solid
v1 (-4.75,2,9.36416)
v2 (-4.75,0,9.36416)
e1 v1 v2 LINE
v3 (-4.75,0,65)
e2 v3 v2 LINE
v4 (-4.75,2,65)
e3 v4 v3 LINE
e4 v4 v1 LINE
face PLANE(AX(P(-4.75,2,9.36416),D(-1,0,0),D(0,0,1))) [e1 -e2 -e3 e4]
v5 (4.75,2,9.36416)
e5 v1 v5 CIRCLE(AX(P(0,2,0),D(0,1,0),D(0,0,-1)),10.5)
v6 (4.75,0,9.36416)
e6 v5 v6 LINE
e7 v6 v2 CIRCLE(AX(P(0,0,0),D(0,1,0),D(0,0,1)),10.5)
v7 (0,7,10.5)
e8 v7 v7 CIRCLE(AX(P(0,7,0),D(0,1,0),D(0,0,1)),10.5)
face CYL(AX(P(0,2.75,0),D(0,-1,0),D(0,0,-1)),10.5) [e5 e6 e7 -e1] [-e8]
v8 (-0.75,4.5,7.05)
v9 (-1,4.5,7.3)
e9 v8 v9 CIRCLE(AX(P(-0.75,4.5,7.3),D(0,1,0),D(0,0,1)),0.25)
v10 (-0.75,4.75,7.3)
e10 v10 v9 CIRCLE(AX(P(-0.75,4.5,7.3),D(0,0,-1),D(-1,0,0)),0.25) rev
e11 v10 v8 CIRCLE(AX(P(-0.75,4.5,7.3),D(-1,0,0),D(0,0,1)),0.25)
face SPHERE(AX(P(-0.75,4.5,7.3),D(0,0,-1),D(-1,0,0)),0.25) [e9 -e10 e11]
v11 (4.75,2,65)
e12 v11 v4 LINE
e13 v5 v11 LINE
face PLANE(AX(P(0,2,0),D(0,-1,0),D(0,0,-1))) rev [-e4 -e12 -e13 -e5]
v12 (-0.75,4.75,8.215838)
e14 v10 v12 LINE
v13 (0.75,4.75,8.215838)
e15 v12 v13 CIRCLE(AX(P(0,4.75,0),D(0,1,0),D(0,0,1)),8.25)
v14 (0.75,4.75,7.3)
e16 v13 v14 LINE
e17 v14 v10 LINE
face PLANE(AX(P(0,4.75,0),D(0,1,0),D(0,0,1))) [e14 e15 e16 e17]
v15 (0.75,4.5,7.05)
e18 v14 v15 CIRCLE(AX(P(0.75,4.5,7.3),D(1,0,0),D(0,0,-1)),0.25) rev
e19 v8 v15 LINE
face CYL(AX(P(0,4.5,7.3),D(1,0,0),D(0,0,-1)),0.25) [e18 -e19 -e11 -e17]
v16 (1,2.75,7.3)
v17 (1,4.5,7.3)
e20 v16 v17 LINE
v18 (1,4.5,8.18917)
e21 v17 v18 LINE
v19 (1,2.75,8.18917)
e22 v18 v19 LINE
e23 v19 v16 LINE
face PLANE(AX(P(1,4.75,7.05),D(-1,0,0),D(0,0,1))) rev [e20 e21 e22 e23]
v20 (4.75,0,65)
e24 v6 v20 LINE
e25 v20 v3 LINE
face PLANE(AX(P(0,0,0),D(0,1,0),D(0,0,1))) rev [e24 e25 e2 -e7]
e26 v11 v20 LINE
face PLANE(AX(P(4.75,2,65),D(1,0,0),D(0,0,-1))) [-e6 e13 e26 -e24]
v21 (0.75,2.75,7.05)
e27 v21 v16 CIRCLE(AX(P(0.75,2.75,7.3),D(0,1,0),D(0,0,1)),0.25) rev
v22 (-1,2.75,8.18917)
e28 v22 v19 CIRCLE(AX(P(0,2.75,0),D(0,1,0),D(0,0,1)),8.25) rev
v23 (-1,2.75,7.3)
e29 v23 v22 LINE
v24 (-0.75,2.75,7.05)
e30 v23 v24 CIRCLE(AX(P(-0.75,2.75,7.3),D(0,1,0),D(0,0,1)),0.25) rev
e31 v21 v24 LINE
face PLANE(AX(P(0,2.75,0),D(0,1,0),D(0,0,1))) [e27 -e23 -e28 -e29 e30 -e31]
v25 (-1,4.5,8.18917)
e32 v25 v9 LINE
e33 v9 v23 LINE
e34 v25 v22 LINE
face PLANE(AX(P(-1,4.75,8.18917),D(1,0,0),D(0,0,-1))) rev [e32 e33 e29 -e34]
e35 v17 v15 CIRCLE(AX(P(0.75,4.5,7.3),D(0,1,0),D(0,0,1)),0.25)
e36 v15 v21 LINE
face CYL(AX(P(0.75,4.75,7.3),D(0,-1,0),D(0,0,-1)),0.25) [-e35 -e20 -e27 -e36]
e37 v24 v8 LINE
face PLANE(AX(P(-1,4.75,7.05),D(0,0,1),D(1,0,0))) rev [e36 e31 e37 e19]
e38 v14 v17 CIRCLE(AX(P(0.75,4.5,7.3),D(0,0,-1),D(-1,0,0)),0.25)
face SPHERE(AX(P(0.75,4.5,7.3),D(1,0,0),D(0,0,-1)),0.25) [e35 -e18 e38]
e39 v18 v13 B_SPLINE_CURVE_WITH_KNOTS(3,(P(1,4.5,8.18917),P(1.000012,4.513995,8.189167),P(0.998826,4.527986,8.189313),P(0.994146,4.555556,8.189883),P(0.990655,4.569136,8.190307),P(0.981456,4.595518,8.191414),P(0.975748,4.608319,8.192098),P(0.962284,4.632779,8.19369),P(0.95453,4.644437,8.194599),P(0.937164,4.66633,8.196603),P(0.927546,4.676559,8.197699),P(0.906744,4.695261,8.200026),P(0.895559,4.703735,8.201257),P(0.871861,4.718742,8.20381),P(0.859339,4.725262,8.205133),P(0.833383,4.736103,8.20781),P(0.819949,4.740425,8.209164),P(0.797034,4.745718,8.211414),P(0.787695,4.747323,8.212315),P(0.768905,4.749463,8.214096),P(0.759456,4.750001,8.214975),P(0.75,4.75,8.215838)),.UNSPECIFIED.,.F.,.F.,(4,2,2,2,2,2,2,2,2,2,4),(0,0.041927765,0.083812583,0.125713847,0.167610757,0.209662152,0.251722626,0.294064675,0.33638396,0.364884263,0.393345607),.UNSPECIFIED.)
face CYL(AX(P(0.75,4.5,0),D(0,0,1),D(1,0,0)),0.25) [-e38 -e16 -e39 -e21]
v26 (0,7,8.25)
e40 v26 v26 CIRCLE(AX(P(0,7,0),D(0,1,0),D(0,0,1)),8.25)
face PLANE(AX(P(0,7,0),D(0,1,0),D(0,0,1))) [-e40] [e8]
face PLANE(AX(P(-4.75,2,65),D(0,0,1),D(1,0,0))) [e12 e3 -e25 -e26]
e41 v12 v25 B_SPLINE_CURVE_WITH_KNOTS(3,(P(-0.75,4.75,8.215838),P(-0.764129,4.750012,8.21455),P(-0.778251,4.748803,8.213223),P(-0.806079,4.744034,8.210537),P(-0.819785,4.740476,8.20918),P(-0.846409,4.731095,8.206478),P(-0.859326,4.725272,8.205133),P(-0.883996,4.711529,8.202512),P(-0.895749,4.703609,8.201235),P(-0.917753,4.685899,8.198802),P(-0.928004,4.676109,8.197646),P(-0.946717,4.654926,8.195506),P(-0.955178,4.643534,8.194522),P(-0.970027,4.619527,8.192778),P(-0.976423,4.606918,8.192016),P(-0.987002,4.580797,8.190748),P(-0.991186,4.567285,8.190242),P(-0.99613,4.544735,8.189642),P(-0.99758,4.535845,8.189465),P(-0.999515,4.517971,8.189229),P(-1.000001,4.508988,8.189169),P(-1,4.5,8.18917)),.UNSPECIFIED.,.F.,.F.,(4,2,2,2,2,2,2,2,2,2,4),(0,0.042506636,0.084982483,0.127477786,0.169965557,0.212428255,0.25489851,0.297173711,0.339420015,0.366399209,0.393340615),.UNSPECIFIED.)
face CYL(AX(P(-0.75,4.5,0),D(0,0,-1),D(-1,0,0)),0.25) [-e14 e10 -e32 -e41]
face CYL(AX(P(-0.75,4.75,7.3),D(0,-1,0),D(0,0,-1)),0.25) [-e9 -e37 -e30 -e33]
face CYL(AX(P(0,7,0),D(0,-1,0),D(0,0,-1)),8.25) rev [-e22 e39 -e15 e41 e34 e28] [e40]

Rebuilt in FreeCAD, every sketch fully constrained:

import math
import FreeCAD as App
import Part
import Sketcher
from FreeCAD import Vector
Q = App.Units.Quantity


def edges_at(feature, points):
    """Names of the edges that pass closest to the given points."""
    edges = feature.Shape.Edges
    near = lambda p: min(range(len(edges)), key=lambda i: edges[i].distToShape(Part.Vertex(*p))[0])
    return sorted({f"Edge{near(p) + 1}" for p in points})

doc = App.newDocument("Part")
body = doc.addObject("PartDesign::Body", "Body")

# Sketch on XZ plane
sketch1 = doc.addObject("Sketcher::SketchObject", "Sketch")
body.addObject(sketch1)
sketch1.AttachmentSupport = (doc.XZ_Plane, [""])
sketch1.MapMode = "FlatFace"
sketch1.addGeometry(Part.Circle(Vector(0, 0, 0), Vector(0, 0, 1), 10), False)
sketch1.addConstraint(Sketcher.Constraint("Coincident", 0, 3, -1, 1))
sketch1.addConstraint(Sketcher.Constraint("Diameter", 0, Q("21 mm")))
pad1 = doc.addObject("PartDesign::Pad", "Pad")
body.addObject(pad1)
pad1.Profile = sketch1
pad1.Length = 2.75
pad1.Reversed = True

# Sketch on XZ plane
sketch2 = doc.addObject("Sketcher::SketchObject", "Sketch001")
body.addObject(sketch2)
sketch2.AttachmentSupport = (doc.XZ_Plane, [""])
sketch2.MapMode = "FlatFace"
sketch2.AttachmentOffset = App.Placement(Vector(0, 0, -2.75), App.Rotation())
sketch2.addGeometry(Part.Circle(Vector(0, 0, 0), Vector(0, 0, 1), 10), False)
sketch2.addGeometry(Part.Circle(Vector(0, 0, 0), Vector(0, 0, 1), 8), False)
sketch2.addConstraint(Sketcher.Constraint("Coincident", 0, 3, -1, 1))
sketch2.addConstraint(Sketcher.Constraint("Coincident", 1, 3, -1, 1))
sketch2.addConstraint(Sketcher.Constraint("Diameter", 0, Q("21 mm")))
sketch2.addConstraint(Sketcher.Constraint("Diameter", 1, Q("16.5 mm")))
pad2 = doc.addObject("PartDesign::Pad", "Pad001")
body.addObject(pad2)
pad2.Profile = sketch2
pad2.Length = 4.25
pad2.Reversed = True

# Sketch on XZ plane
sketch3 = doc.addObject("Sketcher::SketchObject", "Sketch002")
body.addObject(sketch3)
sketch3.AttachmentSupport = (doc.XZ_Plane, [""])
sketch3.MapMode = "FlatFace"
sketch3.AttachmentOffset = App.Placement(Vector(0, 0, -2.75), App.Rotation())
sketch3.addGeometry(Part.LineSegment(Vector(-1, 7, 0), Vector(-1, 8.2, 0)), False)
sketch3.addGeometry(Part.ArcOfCircle(Part.Circle(Vector(0, 0, 0), Vector(0, 0, 1), 8.2), math.radians(83.04), math.radians(96.96)), False)
sketch3.addGeometry(Part.LineSegment(Vector(1, 8.2, 0), Vector(1, 7, 0)), False)
sketch3.addGeometry(Part.LineSegment(Vector(1, 7, 0), Vector(-1, 7, 0)), False)
sketch3.addConstraint(Sketcher.Constraint("Coincident", 0, 2, 1, 2))
sketch3.addConstraint(Sketcher.Constraint("Coincident", 1, 1, 2, 1))
sketch3.addConstraint(Sketcher.Constraint("Coincident", 2, 2, 3, 1))
sketch3.addConstraint(Sketcher.Constraint("Coincident", 3, 2, 0, 1))
sketch3.addConstraint(Sketcher.Constraint("Vertical", 0))
sketch3.addConstraint(Sketcher.Constraint("Vertical", 2))
sketch3.addConstraint(Sketcher.Constraint("Horizontal", 3))
sketch3.addConstraint(Sketcher.Constraint("Coincident", 1, 3, -1, 1))
sketch3.addConstraint(Sketcher.Constraint("Horizontal", 0, 2, 1, 1))
sketch3.addConstraint(Sketcher.Constraint("DistanceX", 3, 2, 3, 1, Q("2 mm")))
sketch3.addConstraint(Sketcher.Constraint("Radius", 1, Q("8.25 mm")))
sketch3.addConstraint(Sketcher.Constraint("DistanceY", -1, 1, 2, 2, Q("7.05 mm")))
pad3 = doc.addObject("PartDesign::Pad", "Pad002")
body.addObject(pad3)
pad3.Profile = sketch3
pad3.Length = 2
pad3.Reversed = True
doc.recompute()

fillet = doc.addObject("PartDesign::Fillet", "Fillet")
body.addObject(fillet)
fillet.Base = (pad3, edges_at(pad3, [
    (1, 3.75, 7.05),
    (-1, 3.75, 7.05),
    (0, 4.75, 7.05),
    (-1, 4.75, 7.62),
    (1, 4.75, 7.62),
]))
fillet.Radius = 0.25

# Sketch on XZ plane
sketch4 = doc.addObject("Sketcher::SketchObject", "Sketch003")
body.addObject(sketch4)
sketch4.AttachmentSupport = (doc.XZ_Plane, [""])
sketch4.MapMode = "FlatFace"
sketch4.addGeometry(Part.LineSegment(Vector(-5, 65, 0), Vector(-5, 9, 0)), False)
sketch4.addGeometry(Part.ArcOfCircle(Part.Circle(Vector(0, 0, 0), Vector(0, 0, 1), 10), math.radians(63), math.radians(117)), False)
sketch4.addGeometry(Part.LineSegment(Vector(5, 9, 0), Vector(5, 65, 0)), False)
sketch4.addGeometry(Part.LineSegment(Vector(5, 65, 0), Vector(-5, 65, 0)), False)
sketch4.addConstraint(Sketcher.Constraint("Coincident", 0, 2, 1, 2))
sketch4.addConstraint(Sketcher.Constraint("Coincident", 1, 1, 2, 1))
sketch4.addConstraint(Sketcher.Constraint("Coincident", 2, 2, 3, 1))
sketch4.addConstraint(Sketcher.Constraint("Coincident", 3, 2, 0, 1))
sketch4.addConstraint(Sketcher.Constraint("Vertical", 0))
sketch4.addConstraint(Sketcher.Constraint("Vertical", 2))
sketch4.addConstraint(Sketcher.Constraint("Horizontal", 3))
sketch4.addConstraint(Sketcher.Constraint("Coincident", 1, 3, -1, 1))
sketch4.addConstraint(Sketcher.Constraint("Horizontal", 0, 2, 1, 1))
sketch4.addConstraint(Sketcher.Constraint("Radius", 1, Q("10.5 mm")))
sketch4.addConstraint(Sketcher.Constraint("DistanceX", 3, 2, 3, 1, Q("9.5 mm")))
sketch4.addConstraint(Sketcher.Constraint("DistanceY", -1, 1, 2, 2, Q("65 mm")))
pad4 = doc.addObject("PartDesign::Pad", "Pad003")
body.addObject(pad4)
pad4.Profile = sketch4
pad4.Length = 2
pad4.Reversed = True

doc.recompute()
